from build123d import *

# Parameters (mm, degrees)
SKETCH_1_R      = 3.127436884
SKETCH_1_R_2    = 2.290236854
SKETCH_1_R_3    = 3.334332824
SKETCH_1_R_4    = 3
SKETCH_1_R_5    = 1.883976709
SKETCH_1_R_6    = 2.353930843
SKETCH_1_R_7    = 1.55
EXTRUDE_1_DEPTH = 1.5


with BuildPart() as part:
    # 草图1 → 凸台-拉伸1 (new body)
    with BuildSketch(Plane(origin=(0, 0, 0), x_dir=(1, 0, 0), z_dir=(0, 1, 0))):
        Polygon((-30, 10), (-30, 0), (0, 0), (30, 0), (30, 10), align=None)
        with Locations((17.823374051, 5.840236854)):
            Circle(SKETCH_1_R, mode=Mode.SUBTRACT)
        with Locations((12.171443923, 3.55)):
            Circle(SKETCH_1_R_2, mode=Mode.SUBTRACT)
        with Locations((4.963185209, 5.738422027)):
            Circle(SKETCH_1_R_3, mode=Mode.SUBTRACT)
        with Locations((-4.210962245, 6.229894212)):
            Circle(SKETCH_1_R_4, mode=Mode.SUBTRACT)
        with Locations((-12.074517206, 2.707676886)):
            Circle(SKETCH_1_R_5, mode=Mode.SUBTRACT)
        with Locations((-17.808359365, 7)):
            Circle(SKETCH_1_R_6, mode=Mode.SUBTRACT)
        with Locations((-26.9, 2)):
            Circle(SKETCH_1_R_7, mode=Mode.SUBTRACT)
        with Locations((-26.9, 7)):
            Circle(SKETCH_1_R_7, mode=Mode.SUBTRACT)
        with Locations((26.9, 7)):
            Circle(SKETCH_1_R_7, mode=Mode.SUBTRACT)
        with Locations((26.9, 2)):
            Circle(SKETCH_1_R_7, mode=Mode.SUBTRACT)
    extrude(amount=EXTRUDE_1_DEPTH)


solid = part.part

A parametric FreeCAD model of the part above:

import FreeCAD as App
import Part
import Sketcher
from FreeCAD import Vector
Q = App.Units.Quantity


def add_polygon(sketch, points):
    """Adds a closed chain of lines whose ends are joined by coincident constraints."""
    first, n = sketch.GeometryCount, len(points)
    for a, b in zip(points, points[1:] + points[:1]):
        sketch.addGeometry(Part.LineSegment(App.Vector(*a, 0), App.Vector(*b, 0)), False)
    for i in range(n):
        sketch.addConstraint(Sketcher.Constraint("Coincident", first + i, 2, first + (i + 1) % n, 1))

doc = App.newDocument("Part")
body = doc.addObject("PartDesign::Body", "Body")

# Sketch on XZ plane
sketch1 = body.newObject("Sketcher::SketchObject", "Sketch")
sketch1.AttachmentSupport = (doc.getObject("XZ_Plane"), [""])
sketch1.MapMode = "FlatFace"
add_polygon(sketch1, [(-30, -10), (-30, 0), (30, 0), (30, -10)])  # lines 0-3
sketch1.addGeometry(Part.Circle(Vector(-26.9, -2, 0), Vector(0, 0, 1), 1.6), False)  # 4
sketch1.addGeometry(Part.Circle(Vector(-12.1, -2.7, 0), Vector(0, 0, 1), 1.9), False)  # 5
sketch1.addGeometry(Part.Circle(Vector(26.9, -2, 0), Vector(0, 0, 1), 1.6), False)  # 6
sketch1.addGeometry(Part.Circle(Vector(12.2, -3.5, 0), Vector(0, 0, 1), 2.3), False)  # 7
sketch1.addGeometry(Part.Circle(Vector(-26.9, -7, 0), Vector(0, 0, 1), 1.6), False)  # 8
sketch1.addGeometry(Part.Circle(Vector(-17.8, -7, 0), Vector(0, 0, 1), 2.4), False)  # 9
sketch1.addGeometry(Part.Circle(Vector(-4.2, -6.2, 0), Vector(0, 0, 1), 3), False)  # 10
sketch1.addGeometry(Part.Circle(Vector(5, -5.7, 0), Vector(0, 0, 1), 3.3), False)  # 11
sketch1.addGeometry(Part.Circle(Vector(17.8, -5.8, 0), Vector(0, 0, 1), 3.1), False)  # 12
sketch1.addGeometry(Part.Circle(Vector(26.9, -7, 0), Vector(0, 0, 1), 1.6), False)  # 13
sketch1.addConstraint(Sketcher.Constraint("Vertical", 0))
sketch1.addConstraint(Sketcher.Constraint("Horizontal", 1))
sketch1.addConstraint(Sketcher.Constraint("Vertical", 2))
sketch1.addConstraint(Sketcher.Constraint("Horizontal", 3))
sketch1.addConstraint(Sketcher.Constraint("Equal", 4, 6))
sketch1.addConstraint(Sketcher.Constraint("Equal", 6, 8))
sketch1.addConstraint(Sketcher.Constraint("Equal", 8, 13))
sketch1.addConstraint(Sketcher.Constraint("Symmetric", 0, 2, 1, 2, -1, 1))
sketch1.addConstraint(Sketcher.Constraint("Symmetric", 4, 3, 6, 3, -2))
sketch1.addConstraint(Sketcher.Constraint("Symmetric", 8, 3, 13, 3, -2))
sketch1.addConstraint(Sketcher.Constraint("Horizontal", 8, 3, 9, 3))
sketch1.addConstraint(Sketcher.Constraint("Vertical", 4, 3, 8, 3))
sketch1.addConstraint(Sketcher.Constraint("Diameter", 10, Q("6 mm")))
sketch1.addConstraint(Sketcher.Constraint("Diameter", 4, Q("3.1 mm")))
sketch1.addConstraint(Sketcher.Constraint("DistanceX", 1, 1, 1, 2, Q("60 mm")))
sketch1.addConstraint(Sketcher.Constraint("DistanceY", 0, 1, 0, 2, Q("10 mm")))
sketch1.addConstraint(Sketcher.Constraint("DistanceY", 4, 3, -1, 1, Q("2 mm")))
sketch1.addConstraint(Sketcher.Constraint("DistanceY", 8, 3, -1, 1, Q("7 mm")))
sketch1.addConstraint(Sketcher.Constraint("DistanceX", 4, 3, -1, 1, Q("26.9 mm")))
sketch1.addConstraint(Sketcher.Constraint("Diameter", 9, Q("4.707862 mm")))
sketch1.addConstraint(Sketcher.Constraint("DistanceY", 7, 3, -1, 1, Q("3.55 mm")))
sketch1.addConstraint(Sketcher.Constraint("Diameter", 5, Q("3.767953 mm")))
sketch1.addConstraint(Sketcher.Constraint("Diameter", 7, Q("4.580474 mm")))
sketch1.addConstraint(Sketcher.Constraint("Diameter", 11, Q("6.668666 mm")))
sketch1.addConstraint(Sketcher.Constraint("Diameter", 12, Q("6.254874 mm")))
sketch1.addConstraint(Sketcher.Constraint("DistanceX", 9, 3, -1, 1, Q("17.808359 mm")))
sketch1.addConstraint(Sketcher.Constraint("DistanceX", 5, 3, 7, 3, Q("24.245961 mm")))
sketch1.addConstraint(Sketcher.Constraint("DistanceX", 11, 3, 7, 3, Q("7.208259 mm")))
sketch1.addConstraint(Sketcher.Constraint("DistanceX", 7, 3, 12, 3, Q("5.65193 mm")))
sketch1.addConstraint(Sketcher.Constraint("DistanceY", 12, 3, 5, 3, Q("3.13256 mm")))
sketch1.addConstraint(Sketcher.Constraint("DistanceX", 5, 3, -1, 1, Q("12.074517 mm")))
sketch1.addConstraint(Sketcher.Constraint("DistanceY", 5, 3, -1, 1, Q("2.707677 mm")))
sketch1.addConstraint(Sketcher.Constraint("DistanceX", 10, 3, -1, 1, Q("4.210962 mm")))
sketch1.addConstraint(Sketcher.Constraint("DistanceY", 10, 3, -1, 1, Q("6.229894 mm")))
sketch1.addConstraint(Sketcher.Constraint("DistanceY", 11, 3, -1, 1, Q("5.738422 mm")))
pad1 = body.newObject("PartDesign::Pad", "Pad")
pad1.Profile = sketch1
pad1.Length = 1.5
pad1.Reversed = True

doc.recompute()
